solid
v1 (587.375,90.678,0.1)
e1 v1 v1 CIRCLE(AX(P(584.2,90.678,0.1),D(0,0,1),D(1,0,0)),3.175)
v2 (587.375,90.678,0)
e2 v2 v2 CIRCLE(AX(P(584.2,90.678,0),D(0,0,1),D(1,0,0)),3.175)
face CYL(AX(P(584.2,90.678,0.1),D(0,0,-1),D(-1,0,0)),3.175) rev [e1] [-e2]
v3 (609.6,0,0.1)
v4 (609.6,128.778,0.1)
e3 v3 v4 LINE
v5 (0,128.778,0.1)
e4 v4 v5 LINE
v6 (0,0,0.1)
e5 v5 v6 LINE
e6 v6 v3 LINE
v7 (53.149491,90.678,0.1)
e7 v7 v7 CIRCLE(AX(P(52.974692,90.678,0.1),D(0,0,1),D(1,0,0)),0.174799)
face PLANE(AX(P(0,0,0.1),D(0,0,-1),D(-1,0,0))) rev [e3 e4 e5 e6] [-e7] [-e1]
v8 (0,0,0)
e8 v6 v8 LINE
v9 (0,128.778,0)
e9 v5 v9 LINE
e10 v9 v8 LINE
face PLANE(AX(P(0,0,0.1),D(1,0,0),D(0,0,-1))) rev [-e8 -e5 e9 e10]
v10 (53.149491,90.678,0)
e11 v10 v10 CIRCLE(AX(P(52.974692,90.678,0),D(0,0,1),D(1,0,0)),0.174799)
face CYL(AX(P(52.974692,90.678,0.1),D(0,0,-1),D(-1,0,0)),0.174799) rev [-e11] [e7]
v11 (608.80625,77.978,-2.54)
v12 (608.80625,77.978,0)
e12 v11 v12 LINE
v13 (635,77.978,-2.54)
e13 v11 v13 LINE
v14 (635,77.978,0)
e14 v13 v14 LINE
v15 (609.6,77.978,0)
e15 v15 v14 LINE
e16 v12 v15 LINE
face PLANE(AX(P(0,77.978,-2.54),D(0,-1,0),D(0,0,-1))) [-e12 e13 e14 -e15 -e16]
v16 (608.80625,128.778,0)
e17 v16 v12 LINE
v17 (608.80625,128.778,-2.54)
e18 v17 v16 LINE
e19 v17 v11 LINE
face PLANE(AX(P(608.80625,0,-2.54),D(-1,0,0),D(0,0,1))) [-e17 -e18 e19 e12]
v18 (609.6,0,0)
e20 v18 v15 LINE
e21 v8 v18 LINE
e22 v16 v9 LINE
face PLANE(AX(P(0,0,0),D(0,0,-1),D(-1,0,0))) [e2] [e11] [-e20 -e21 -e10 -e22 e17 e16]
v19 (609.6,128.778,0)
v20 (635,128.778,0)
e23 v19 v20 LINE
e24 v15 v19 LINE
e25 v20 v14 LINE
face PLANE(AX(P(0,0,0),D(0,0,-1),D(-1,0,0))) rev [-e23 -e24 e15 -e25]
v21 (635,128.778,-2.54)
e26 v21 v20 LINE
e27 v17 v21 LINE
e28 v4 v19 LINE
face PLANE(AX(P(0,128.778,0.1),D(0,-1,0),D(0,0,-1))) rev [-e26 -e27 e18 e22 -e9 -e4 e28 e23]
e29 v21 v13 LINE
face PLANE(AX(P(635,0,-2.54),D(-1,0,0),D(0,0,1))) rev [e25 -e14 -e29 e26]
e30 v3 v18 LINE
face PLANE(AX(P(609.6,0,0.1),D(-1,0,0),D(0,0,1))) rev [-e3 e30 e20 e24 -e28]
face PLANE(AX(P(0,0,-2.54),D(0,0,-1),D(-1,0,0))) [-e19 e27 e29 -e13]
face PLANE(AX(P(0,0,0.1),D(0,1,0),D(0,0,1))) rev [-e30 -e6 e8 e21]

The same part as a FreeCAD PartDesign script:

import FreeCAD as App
import Part
import Sketcher
Q = App.Units.Quantity


def add_polygon(sketch, points):
    """Adds a closed chain of lines whose ends are joined by coincident constraints."""
    first, n = sketch.GeometryCount, len(points)
    for a, b in zip(points, points[1:] + points[:1]):
        sketch.addGeometry(Part.LineSegment(App.Vector(*a, 0), App.Vector(*b, 0)), False)
    for i in range(n):
        sketch.addConstraint(Sketcher.Constraint("Coincident", first + i, 2, first + (i + 1) % n, 1))

doc = App.newDocument("Part")
body = doc.addObject("PartDesign::Body", "Body")

sketch1 = body.newObject("Sketcher::SketchObject", "Sketch")
sketch1.AttachmentSupport = (doc.getObject("XY_Plane"), [""])
sketch1.MapMode = "FlatFace"
add_polygon(sketch1, [(0, 128.78), (0, 0), (609.6, 0), (609.6, 128.78)])
sketch1.addGeometry(Part.Circle(App.Vector(52.97, 90.68, 0), App.Vector(0, 0, 1), 0.17), False)
sketch1.addGeometry(Part.Circle(App.Vector(584.2, 90.68, 0), App.Vector(0, 0, 1), 3.17), False)
sketch1.addConstraint([
    Sketcher.Constraint("Vertical", 0),
    Sketcher.Constraint("Horizontal", 1),
    Sketcher.Constraint("Vertical", 2),
    Sketcher.Constraint("Horizontal", 3),
    Sketcher.Constraint("Coincident", 0, 2, -1, 1),
    Sketcher.Constraint("Horizontal", 4, 3, 5, 3),
    Sketcher.Constraint("Diameter", 5, Q("0.25 in")),
    Sketcher.Constraint("DistanceX", 1, 1, 1, 2, Q("24 in")),
    Sketcher.Constraint("DistanceX", -1, 1, 5, 3, Q("23 in")),
    Sketcher.Constraint("DistanceY", 0, 2, 0, 1, Q("5.07 in")),
    Sketcher.Constraint("DistanceY", 5, 3, 2, 2, Q("1.5 in")),
    Sketcher.Constraint("Diameter", 4, Q("0.349598 mm")),
    Sketcher.Constraint("DistanceX", -1, 1, 4, 3, Q("52.974692 mm")),
])
pad1 = body.newObject("PartDesign::Pad", "Pad")
pad1.Profile = sketch1
pad1.Length = 0.1

sketch2 = body.newObject("Sketcher::SketchObject", "Sketch001")
sketch2.AttachmentSupport = (doc.getObject("XY_Plane"), [""])
sketch2.MapMode = "FlatFace"
add_polygon(sketch2, [(635, 129), (635, 78), (609, 78), (609, 129)])
sketch2.addConstraint([
    Sketcher.Constraint("Vertical", 0),
    Sketcher.Constraint("Horizontal", 1),
    Sketcher.Constraint("Vertical", 2),
    Sketcher.Constraint("Horizontal", 3),
    Sketcher.Constraint("DistanceY", 0, 2, 0, 1, Q("2 in")),
    Sketcher.Constraint("DistanceX", -1, 1, 0, 2, Q("25 in")),
    Sketcher.Constraint("DistanceX", 1, 2, 1, 1, Q("1.03125 in")),
    Sketcher.Constraint("DistanceY", -1, 1, 0, 2, Q("3.07 in")),
])
pad2 = body.newObject("PartDesign::Pad", "Pad001")
pad2.Profile = sketch2
pad2.Length = Q("0.1 in")
pad2.Reversed = True

doc.recompute()
